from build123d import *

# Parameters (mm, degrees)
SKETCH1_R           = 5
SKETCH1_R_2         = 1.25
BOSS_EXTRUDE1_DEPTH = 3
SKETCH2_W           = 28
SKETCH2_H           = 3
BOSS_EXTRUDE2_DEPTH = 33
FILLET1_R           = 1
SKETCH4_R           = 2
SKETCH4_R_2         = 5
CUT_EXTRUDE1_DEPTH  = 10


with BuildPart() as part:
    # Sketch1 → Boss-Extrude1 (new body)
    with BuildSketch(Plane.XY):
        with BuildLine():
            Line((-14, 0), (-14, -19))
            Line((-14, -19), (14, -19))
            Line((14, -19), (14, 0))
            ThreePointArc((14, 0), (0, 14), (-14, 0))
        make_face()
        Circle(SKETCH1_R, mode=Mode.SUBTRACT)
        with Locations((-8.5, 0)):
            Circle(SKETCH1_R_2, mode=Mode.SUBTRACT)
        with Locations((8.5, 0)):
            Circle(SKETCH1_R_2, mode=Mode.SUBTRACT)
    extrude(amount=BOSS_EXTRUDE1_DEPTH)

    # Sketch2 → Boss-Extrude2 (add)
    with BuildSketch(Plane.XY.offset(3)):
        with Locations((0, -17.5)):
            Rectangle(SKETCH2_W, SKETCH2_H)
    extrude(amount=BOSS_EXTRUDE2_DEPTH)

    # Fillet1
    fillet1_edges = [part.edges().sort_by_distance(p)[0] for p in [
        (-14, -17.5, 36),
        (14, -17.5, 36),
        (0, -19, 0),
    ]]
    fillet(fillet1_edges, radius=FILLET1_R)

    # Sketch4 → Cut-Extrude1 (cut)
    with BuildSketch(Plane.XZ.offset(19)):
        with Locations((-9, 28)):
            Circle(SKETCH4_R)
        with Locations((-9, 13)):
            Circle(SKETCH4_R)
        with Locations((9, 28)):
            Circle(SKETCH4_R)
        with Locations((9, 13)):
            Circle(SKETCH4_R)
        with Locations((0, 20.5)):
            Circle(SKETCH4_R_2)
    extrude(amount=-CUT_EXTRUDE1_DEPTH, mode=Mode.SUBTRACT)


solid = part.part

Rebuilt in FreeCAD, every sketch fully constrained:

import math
import FreeCAD as App
import Part
import Sketcher
from FreeCAD import Vector


def edges_at(feature, points):
    """Names of the edges that pass closest to the given points."""
    edges = feature.Shape.Edges
    near = lambda p: min(range(len(edges)), key=lambda i: edges[i].distToShape(Part.Vertex(*p))[0])
    return sorted({f"Edge{near(p) + 1}" for p in points})

doc = App.newDocument("Part")
body = doc.addObject("PartDesign::Body", "Body")

sketch1 = body.newObject("Sketcher::SketchObject", "Sketch")
sketch1.AttachmentSupport = (doc.getObject("XY_Plane"), [""])
sketch1.MapMode = "FlatFace"
sketch1.addGeometry([
    Part.LineSegment(Vector(-14, 0, 0), Vector(-14, -19, 0)),
    Part.LineSegment(Vector(-14, -19, 0), Vector(14, -19, 0)),
    Part.LineSegment(Vector(14, -19, 0), Vector(14, 0, 0)),
    Part.ArcOfCircle(Part.Circle(Vector(0, 0, 0), Vector(0, 0, 1), 14), math.radians(0), math.radians(180)),
    Part.Circle(Vector(-8.5, 0, 0), Vector(0, 0, 1), 1.2),
    Part.Circle(Vector(0, 0, 0), Vector(0, 0, 1), 5),
    Part.Circle(Vector(8.5, 0, 0), Vector(0, 0, 1), 1.2),
], False)
sketch1.addConstraint([
    Sketcher.Constraint("Coincident", 0, 2, 1, 1),
    Sketcher.Constraint("Coincident", 1, 2, 2, 1),
    Sketcher.Constraint("Tangent", 2, 2, 3, 1),
    Sketcher.Constraint("Tangent", 3, 2, 0, 1),
    Sketcher.Constraint("Vertical", 0),
    Sketcher.Constraint("Horizontal", 1),
    Sketcher.Constraint("Vertical", 2),
    Sketcher.Constraint("Coincident", 3, 3, -1, 1),
    Sketcher.Constraint("Coincident", 5, 3, -1, 1),
    Sketcher.Constraint("Equal", 4, 6),
    Sketcher.Constraint("Symmetric", 4, 3, 6, 3, -1, 1),
    Sketcher.Constraint("PointOnObject", 4, 3, -1),
    Sketcher.Constraint("Diameter", 5, 10.0),
    Sketcher.Constraint("Radius", 3, 14.0),
    Sketcher.Constraint("Diameter", 4, 2.5),
    Sketcher.Constraint("DistanceY", 0, 2, 0, 1, 19.0),
    Sketcher.Constraint("DistanceX", 4, 3, 6, 3, 17.0),
])
pad1 = body.newObject("PartDesign::Pad", "Pad")
pad1.Profile = sketch1
pad1.Length = 3

sketch2 = body.newObject("Sketcher::SketchObject", "Sketch001")
sketch2.AttachmentSupport = (doc.getObject("XY_Plane"), [""])
sketch2.MapMode = "FlatFace"
sketch2.AttachmentOffset = App.Placement(Vector(0, 0, 3), App.Rotation())
sketch2.addGeometry([
    Part.LineSegment(Vector(-14, -16, 0), Vector(-14, -19, 0)),
    Part.LineSegment(Vector(-14, -19, 0), Vector(14, -19, 0)),
    Part.LineSegment(Vector(14, -19, 0), Vector(14, -16, 0)),
    Part.LineSegment(Vector(14, -16, 0), Vector(-14, -16, 0)),
], False)
sketch2.addConstraint([
    Sketcher.Constraint("Coincident", 0, 2, 1, 1),
    Sketcher.Constraint("Coincident", 1, 2, 2, 1),
    Sketcher.Constraint("Coincident", 2, 2, 3, 1),
    Sketcher.Constraint("Coincident", 3, 2, 0, 1),
    Sketcher.Constraint("Vertical", 0),
    Sketcher.Constraint("Horizontal", 1),
    Sketcher.Constraint("Vertical", 2),
    Sketcher.Constraint("Horizontal", 3),
    Sketcher.Constraint("DistanceX", 1, 1, 1, 2, 28.0),
    Sketcher.Constraint("DistanceY", 0, 2, 0, 1, 3.0),
    Sketcher.Constraint("DistanceX", 0, 2, -1, 1, 14.0),
    Sketcher.Constraint("DistanceY", 0, 2, -1, 1, 19.0),
])
pad2 = body.newObject("PartDesign::Pad", "Pad001")
pad2.Profile = sketch2
pad2.Length = 33
doc.recompute()

fillet = body.newObject("PartDesign::Fillet", "Fillet")
fillet.Base = (pad2, edges_at(pad2, [(-14, -17.5, 36), (14, -17.5, 36), (0, -19, 0)]))
fillet.Radius = 1

sketch3 = body.newObject("Sketcher::SketchObject", "Sketch002")
sketch3.AttachmentSupport = (doc.getObject("XZ_Plane"), [""])
sketch3.MapMode = "FlatFace"
sketch3.AttachmentOffset = App.Placement(Vector(0, 0, 19), App.Rotation())
sketch3.addGeometry([
    Part.Circle(Vector(-9, 28, 0), Vector(0, 0, 1), 2),
    Part.Circle(Vector(-9, 13, 0), Vector(0, 0, 1), 2),
    Part.Circle(Vector(9, 28, 0), Vector(0, 0, 1), 2),
    Part.Circle(Vector(9, 13, 0), Vector(0, 0, 1), 2),
    Part.Circle(Vector(0, 20.5, 0), Vector(0, 0, 1), 5),
], False)
sketch3.addConstraint([
    Sketcher.Constraint("Equal", 0, 1),
    Sketcher.Constraint("Equal", 1, 2),
    Sketcher.Constraint("Equal", 2, 3),
    Sketcher.Constraint("Symmetric", 0, 3, 2, 3, -2),
    Sketcher.Constraint("Symmetric", 1, 3, 3, 3, -2),
    Sketcher.Constraint("PointOnObject", 4, 3, -2),
    Sketcher.Constraint("Vertical", 0, 3, 1, 3),
    Sketcher.Constraint("Diameter", 0, 4.0),
    Sketcher.Constraint("Diameter", 4, 10.0),
    Sketcher.Constraint("DistanceX", 0, 3, -1, 1, 9.0),
    Sketcher.Constraint("DistanceY", -1, 1, 0, 3, 28.0),
    Sketcher.Constraint("DistanceY", -1, 1, 1, 3, 13.0),
    Sketcher.Constraint("DistanceY", -1, 1, 4, 3, 20.5),
])
pocket1 = body.newObject("PartDesign::Pocket", "Pocket")
pocket1.Profile = sketch3
pocket1.Length = 10

doc.recompute()
